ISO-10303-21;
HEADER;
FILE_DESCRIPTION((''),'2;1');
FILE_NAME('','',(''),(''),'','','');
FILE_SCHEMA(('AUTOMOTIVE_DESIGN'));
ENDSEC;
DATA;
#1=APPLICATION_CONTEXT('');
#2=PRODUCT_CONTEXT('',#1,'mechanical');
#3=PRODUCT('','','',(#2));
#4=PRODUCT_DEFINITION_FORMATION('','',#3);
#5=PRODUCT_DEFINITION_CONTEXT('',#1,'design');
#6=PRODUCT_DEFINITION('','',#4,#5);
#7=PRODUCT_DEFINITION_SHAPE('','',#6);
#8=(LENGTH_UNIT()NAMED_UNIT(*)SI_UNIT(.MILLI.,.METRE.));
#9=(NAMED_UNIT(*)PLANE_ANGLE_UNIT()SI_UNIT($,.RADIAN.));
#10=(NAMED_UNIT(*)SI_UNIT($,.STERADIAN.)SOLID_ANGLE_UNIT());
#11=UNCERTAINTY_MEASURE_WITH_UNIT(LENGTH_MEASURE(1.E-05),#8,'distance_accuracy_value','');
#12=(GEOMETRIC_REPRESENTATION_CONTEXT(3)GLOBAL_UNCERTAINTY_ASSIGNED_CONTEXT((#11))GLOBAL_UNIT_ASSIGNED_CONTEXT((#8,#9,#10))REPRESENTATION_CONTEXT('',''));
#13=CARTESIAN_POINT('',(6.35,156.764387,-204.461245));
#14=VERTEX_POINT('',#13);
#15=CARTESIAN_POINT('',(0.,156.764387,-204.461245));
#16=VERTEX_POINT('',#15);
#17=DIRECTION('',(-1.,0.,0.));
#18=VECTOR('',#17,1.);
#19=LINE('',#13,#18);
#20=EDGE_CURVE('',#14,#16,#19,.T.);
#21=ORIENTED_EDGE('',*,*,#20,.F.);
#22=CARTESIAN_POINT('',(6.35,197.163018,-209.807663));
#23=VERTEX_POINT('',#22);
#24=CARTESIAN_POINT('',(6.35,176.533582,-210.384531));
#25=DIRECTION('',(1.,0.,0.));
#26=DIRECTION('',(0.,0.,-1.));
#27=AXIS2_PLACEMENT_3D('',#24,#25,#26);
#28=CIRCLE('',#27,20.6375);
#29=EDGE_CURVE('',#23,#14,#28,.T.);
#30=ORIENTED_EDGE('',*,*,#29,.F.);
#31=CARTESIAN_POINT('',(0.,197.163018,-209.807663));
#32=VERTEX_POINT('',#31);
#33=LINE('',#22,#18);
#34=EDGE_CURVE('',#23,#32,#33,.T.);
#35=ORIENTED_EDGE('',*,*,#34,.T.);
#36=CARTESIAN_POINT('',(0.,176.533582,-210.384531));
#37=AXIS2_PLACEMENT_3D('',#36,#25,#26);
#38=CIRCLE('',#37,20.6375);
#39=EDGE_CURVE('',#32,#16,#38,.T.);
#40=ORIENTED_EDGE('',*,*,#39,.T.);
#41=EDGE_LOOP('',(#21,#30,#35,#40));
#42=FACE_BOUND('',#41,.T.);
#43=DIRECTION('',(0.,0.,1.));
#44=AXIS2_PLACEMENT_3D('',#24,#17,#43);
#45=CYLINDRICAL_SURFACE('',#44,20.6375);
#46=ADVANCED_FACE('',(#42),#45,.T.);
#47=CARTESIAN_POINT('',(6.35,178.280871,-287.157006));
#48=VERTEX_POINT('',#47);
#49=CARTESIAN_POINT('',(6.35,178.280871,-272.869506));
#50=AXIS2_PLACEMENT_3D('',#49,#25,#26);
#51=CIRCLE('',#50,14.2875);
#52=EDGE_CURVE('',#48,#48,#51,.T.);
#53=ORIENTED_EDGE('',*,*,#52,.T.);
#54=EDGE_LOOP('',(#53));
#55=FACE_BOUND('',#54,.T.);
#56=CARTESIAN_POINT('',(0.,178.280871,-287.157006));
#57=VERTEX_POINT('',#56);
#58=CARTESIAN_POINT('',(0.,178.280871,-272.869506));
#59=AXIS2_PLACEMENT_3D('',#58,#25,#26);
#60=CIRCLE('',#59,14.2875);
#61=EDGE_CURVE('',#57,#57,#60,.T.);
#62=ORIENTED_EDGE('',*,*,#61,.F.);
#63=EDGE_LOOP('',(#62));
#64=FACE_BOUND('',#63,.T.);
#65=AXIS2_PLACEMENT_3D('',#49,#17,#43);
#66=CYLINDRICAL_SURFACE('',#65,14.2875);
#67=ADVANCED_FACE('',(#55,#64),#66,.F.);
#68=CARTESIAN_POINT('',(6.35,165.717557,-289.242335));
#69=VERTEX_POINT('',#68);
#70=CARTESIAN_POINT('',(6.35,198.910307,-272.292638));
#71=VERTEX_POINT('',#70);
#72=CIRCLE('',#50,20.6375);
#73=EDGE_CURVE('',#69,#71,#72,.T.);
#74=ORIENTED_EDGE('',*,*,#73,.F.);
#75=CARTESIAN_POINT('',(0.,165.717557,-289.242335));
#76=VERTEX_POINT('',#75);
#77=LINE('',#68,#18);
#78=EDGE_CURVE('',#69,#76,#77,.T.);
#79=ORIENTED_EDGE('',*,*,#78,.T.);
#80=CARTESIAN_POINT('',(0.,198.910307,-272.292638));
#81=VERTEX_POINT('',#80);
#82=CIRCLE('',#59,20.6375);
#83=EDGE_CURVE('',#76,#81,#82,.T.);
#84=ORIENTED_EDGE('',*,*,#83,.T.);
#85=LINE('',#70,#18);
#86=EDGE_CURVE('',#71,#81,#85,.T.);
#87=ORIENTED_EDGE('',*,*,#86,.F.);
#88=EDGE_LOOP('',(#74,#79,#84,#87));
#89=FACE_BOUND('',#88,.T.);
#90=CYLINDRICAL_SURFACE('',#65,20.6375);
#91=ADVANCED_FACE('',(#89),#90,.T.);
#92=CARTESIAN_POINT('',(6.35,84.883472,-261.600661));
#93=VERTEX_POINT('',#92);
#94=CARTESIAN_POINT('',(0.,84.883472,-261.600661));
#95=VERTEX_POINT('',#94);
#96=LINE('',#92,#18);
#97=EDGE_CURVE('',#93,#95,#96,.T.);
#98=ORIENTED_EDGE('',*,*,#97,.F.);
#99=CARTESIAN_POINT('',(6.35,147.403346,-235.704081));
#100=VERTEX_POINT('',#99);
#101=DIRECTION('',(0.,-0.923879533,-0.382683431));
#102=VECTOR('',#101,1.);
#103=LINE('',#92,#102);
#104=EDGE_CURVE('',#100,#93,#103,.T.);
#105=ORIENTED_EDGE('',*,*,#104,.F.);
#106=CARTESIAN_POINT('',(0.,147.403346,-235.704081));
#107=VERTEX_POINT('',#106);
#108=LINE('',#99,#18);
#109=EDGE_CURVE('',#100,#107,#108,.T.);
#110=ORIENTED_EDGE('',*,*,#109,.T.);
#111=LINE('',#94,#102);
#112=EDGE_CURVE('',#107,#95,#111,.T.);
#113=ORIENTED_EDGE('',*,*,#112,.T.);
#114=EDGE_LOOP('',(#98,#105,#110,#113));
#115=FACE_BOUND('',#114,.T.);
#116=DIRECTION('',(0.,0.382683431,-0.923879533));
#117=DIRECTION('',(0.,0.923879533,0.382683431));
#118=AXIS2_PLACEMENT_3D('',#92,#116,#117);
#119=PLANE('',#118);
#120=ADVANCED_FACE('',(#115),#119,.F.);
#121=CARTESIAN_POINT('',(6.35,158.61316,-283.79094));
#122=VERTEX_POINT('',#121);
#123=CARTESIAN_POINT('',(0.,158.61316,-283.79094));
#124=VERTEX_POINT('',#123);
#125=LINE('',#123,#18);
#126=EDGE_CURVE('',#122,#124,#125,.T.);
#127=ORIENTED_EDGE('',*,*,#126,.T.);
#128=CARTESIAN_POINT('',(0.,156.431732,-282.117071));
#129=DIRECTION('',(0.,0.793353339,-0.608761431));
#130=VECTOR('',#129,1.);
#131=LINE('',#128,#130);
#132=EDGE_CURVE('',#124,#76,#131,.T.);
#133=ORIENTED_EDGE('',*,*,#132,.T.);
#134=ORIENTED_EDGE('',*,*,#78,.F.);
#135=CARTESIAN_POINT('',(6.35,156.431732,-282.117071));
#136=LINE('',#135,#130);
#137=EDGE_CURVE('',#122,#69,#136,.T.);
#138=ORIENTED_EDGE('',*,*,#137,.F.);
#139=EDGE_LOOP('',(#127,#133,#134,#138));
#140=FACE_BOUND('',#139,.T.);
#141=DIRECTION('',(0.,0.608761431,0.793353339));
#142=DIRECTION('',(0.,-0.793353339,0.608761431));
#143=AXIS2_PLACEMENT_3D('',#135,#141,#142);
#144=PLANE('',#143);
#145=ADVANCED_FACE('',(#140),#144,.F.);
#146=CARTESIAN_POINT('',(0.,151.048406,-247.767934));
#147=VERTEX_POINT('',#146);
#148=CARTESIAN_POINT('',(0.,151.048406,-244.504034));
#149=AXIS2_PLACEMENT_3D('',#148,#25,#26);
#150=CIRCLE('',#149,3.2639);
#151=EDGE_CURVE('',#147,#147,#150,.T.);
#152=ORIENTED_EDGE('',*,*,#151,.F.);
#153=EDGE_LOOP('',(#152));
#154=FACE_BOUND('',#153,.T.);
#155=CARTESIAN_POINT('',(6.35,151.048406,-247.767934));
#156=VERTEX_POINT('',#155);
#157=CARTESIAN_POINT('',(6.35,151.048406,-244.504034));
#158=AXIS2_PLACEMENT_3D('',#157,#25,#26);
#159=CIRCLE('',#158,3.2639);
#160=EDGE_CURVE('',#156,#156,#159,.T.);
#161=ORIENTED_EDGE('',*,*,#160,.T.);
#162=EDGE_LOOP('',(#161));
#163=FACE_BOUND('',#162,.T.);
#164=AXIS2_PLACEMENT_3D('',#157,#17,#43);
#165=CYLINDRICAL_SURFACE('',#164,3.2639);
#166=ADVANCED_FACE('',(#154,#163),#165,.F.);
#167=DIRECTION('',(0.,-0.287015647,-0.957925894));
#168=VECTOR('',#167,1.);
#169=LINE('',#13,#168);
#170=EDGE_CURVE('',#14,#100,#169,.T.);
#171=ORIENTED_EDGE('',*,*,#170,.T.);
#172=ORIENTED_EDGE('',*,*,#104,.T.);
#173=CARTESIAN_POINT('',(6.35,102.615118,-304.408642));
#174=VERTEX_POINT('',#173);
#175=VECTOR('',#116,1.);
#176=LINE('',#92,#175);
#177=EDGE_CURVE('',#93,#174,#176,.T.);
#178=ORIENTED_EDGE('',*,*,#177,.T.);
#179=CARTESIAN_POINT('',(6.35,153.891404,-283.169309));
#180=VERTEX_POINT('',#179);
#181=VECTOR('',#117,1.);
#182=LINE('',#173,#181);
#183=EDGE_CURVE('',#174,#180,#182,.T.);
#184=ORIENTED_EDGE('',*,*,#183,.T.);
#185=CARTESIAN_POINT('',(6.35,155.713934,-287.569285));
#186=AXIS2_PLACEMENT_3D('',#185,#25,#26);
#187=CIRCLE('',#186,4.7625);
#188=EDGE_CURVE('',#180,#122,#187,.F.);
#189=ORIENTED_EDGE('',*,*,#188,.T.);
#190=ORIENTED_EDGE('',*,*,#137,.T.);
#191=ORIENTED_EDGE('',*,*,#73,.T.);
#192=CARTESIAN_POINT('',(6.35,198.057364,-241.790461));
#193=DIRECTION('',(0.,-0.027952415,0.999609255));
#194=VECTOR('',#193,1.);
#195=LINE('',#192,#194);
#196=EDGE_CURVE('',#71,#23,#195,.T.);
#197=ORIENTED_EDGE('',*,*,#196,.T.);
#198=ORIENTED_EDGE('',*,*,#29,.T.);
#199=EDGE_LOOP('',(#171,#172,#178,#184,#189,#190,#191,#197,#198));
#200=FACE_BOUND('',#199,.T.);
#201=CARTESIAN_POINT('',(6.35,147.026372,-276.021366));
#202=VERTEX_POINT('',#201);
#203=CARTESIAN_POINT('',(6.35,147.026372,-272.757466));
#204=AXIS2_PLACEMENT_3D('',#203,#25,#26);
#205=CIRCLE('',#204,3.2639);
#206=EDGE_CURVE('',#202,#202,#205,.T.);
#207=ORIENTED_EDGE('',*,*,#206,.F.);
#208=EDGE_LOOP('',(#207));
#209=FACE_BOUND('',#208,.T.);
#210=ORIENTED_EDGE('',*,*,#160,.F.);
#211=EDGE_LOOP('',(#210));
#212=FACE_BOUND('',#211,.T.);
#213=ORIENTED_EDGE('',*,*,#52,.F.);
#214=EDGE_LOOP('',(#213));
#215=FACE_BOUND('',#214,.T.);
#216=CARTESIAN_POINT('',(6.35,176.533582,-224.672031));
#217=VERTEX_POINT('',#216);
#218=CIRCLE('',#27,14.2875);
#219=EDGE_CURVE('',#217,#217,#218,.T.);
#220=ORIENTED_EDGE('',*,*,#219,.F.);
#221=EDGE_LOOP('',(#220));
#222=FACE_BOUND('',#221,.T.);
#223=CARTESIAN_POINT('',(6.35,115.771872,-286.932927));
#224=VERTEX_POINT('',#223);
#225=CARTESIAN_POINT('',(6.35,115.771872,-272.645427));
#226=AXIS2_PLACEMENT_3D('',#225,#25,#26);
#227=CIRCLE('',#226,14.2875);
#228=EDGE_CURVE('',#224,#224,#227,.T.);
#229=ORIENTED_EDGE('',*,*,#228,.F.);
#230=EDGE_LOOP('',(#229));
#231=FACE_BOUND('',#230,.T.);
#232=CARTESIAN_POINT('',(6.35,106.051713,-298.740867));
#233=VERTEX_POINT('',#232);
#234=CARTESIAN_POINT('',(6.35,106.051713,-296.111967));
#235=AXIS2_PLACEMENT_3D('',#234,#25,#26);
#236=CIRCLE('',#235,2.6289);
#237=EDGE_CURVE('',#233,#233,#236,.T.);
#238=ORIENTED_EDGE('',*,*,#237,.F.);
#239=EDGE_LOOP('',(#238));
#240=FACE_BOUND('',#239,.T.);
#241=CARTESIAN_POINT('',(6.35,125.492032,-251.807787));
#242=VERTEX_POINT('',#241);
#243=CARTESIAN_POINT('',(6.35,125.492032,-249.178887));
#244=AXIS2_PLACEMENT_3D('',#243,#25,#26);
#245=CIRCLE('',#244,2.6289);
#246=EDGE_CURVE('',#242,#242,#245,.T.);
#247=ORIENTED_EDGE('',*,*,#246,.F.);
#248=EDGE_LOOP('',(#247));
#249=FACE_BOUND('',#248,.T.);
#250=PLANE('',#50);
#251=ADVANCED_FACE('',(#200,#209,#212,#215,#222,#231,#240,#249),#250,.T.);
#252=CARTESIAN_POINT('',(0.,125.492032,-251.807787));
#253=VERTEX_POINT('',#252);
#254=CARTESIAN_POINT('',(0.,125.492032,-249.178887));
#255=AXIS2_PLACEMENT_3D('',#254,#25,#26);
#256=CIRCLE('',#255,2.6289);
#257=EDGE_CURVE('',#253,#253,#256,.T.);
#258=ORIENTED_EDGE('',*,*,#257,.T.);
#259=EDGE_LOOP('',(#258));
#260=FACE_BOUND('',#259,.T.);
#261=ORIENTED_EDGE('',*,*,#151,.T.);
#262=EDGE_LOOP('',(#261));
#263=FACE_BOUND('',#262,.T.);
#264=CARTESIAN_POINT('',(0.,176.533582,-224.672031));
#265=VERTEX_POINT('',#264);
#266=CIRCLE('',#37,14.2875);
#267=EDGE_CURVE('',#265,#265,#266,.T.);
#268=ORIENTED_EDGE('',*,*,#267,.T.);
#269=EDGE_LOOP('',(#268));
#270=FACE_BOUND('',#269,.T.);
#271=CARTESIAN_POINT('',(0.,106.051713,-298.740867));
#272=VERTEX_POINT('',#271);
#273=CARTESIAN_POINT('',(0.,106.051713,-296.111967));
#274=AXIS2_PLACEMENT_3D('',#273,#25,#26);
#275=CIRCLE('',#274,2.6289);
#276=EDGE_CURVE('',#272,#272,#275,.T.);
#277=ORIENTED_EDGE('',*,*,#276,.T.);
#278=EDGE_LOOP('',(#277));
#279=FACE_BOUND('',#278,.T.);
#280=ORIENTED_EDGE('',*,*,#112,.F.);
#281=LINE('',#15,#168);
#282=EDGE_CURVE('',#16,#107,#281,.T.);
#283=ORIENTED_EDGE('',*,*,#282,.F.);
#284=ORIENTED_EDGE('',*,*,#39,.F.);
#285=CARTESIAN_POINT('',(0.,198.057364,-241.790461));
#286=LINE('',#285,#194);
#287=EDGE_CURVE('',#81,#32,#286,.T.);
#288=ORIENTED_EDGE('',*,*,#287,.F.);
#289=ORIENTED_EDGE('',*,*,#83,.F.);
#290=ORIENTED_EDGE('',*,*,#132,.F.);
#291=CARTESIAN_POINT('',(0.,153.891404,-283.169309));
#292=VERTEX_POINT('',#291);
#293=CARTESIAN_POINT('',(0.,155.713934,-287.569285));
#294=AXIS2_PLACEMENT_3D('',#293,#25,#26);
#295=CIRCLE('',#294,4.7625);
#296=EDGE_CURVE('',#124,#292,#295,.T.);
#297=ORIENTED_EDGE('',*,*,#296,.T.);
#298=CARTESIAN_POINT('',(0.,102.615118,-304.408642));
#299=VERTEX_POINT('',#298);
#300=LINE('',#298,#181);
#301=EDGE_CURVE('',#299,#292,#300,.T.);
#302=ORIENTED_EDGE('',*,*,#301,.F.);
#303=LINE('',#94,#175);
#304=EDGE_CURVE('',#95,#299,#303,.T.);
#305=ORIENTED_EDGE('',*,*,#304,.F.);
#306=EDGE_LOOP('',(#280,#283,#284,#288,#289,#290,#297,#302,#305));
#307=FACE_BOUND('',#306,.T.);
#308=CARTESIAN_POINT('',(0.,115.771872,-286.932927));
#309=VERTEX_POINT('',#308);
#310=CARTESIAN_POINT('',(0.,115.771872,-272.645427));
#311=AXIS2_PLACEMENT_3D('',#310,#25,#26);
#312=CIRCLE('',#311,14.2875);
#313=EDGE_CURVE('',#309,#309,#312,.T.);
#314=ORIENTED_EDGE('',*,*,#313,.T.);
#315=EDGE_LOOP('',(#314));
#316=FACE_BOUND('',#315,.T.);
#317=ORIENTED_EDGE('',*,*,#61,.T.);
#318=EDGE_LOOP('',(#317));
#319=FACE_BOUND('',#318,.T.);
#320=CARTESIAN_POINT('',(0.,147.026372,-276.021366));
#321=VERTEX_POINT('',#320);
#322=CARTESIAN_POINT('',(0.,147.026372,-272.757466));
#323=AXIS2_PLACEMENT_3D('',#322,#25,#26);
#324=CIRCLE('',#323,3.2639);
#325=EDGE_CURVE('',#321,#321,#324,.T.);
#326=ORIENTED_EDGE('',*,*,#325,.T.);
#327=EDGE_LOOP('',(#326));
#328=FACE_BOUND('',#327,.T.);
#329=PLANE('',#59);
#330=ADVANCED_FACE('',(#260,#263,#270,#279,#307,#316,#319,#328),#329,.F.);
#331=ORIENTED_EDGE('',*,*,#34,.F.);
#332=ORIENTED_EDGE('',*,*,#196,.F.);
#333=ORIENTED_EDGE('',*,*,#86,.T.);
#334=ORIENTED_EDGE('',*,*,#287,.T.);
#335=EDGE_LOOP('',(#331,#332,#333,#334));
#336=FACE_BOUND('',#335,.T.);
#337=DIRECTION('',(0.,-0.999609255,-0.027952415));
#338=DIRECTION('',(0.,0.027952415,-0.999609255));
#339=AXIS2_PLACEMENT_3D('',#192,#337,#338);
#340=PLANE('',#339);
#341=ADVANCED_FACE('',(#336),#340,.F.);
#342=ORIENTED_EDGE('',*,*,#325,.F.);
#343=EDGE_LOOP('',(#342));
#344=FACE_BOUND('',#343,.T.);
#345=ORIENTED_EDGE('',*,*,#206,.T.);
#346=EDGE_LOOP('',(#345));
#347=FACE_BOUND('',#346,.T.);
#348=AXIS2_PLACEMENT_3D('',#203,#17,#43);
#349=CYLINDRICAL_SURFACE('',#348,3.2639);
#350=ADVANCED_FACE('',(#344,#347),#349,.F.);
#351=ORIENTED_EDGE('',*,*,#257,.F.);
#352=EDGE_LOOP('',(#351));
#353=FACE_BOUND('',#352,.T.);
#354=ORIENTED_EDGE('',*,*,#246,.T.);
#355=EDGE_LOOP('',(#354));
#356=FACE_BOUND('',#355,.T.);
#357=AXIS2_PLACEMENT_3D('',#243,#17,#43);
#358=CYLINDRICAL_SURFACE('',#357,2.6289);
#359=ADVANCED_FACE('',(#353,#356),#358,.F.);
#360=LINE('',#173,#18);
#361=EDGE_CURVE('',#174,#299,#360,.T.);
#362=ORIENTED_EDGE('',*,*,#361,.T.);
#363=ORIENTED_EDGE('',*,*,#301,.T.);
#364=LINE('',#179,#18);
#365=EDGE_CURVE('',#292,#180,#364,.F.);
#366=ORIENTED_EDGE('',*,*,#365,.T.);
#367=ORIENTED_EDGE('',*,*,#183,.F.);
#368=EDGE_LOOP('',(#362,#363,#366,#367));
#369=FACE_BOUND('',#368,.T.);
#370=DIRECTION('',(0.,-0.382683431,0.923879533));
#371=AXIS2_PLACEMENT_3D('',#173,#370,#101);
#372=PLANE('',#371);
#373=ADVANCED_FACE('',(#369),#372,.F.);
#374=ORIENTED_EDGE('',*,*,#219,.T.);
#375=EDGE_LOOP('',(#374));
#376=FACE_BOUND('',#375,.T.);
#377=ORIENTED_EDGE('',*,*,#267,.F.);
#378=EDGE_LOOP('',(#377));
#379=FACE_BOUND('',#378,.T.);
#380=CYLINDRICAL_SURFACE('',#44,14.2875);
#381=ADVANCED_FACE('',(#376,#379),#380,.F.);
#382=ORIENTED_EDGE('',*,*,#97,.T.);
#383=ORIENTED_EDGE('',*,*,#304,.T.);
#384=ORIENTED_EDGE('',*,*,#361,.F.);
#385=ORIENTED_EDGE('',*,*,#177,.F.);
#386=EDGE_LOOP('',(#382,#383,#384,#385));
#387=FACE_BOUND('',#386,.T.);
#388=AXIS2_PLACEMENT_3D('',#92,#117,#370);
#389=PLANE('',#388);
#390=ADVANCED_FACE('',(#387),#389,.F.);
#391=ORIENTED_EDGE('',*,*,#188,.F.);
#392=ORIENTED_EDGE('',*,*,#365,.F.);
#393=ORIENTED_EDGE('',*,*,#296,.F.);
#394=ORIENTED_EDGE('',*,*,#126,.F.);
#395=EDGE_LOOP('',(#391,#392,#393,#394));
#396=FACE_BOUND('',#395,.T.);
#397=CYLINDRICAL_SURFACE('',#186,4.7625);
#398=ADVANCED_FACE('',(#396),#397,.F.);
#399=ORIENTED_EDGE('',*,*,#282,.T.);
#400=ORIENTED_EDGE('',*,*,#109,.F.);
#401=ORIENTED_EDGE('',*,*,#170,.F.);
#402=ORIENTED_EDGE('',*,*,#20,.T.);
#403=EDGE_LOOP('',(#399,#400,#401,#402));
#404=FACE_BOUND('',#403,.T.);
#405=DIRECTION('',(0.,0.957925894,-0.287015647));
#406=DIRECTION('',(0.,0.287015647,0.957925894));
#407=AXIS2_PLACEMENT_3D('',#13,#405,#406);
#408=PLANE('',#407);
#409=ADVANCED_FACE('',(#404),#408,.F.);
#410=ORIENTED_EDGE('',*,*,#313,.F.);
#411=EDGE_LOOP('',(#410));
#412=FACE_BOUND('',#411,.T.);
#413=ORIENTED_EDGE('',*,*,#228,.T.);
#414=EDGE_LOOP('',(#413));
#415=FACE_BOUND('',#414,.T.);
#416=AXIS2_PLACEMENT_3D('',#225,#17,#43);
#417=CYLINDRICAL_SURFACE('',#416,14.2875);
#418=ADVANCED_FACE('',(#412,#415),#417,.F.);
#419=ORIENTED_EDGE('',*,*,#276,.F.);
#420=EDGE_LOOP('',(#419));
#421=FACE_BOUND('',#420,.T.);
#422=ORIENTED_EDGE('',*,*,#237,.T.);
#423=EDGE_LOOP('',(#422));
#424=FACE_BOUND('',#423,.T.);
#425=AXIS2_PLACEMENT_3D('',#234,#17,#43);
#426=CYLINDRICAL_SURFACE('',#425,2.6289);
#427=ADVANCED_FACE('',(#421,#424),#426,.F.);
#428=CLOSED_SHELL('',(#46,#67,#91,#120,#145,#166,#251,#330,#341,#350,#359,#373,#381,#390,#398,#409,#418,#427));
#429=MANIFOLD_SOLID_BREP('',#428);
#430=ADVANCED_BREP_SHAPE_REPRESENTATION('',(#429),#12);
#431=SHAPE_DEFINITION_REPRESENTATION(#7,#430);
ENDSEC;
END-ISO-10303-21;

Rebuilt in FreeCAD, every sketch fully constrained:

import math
import FreeCAD as App
import Part
import Sketcher

V = App.Vector
Q = App.Units.Quantity


def edges_at(feature, points):
    """Names of the edges that pass closest to the given points."""
    edges = feature.Shape.Edges
    near = lambda p: min(range(len(edges)), key=lambda i: edges[i].distToShape(Part.Vertex(*p))[0])
    return sorted({f"Edge{near(p) + 1}" for p in points})

doc = App.newDocument("Part")
body = doc.addObject("PartDesign::Body", "Body")

# Sketch on YZ plane
sketch1 = doc.addObject("Sketcher::SketchObject", "Sketch")
body.addObject(sketch1)
sketch1.AttachmentSupport = (doc.YZ_Plane, [""])
sketch1.MapMode = "FlatFace"
sketch1.addGeometry([
    Part.LineSegment(V(147.4, -235.7, 0), V(84.9, -261.6, 0)),  # 0
    Part.LineSegment(V(84.9, -261.6, 0), V(102.6, -304.4, 0)),  # 1
    Part.LineSegment(V(102.6, -304.4, 0), V(156.4, -282.1, 0)),  # 2
    Part.LineSegment(V(156.4, -282.1, 0), V(165.7, -289.2, 0)),  # 3
    Part.ArcOfCircle(Part.Circle(V(178.3, -272.9, 0), V(0, 0, 1), 20.6), math.radians(-128), math.radians(2)),  # 4
    Part.LineSegment(V(198.9, -272.3, 0), V(198.1, -241.8, 0)),  # 5
    Part.LineSegment(V(198.1, -241.8, 0), V(197.2, -209.8, 0)),  # 6
    Part.ArcOfCircle(Part.Circle(V(176.5, -210.4, 0), V(0, 0, 1), 20.6), math.radians(2), math.radians(163)),  # 7
    Part.LineSegment(V(156.8, -204.5, 0), V(147.4, -235.7, 0)),  # 8
    Part.Circle(V(106.1, -296.1, 0), V(0, 0, 1), 2.6),  # 9
    Part.Circle(V(115.8, -272.6, 0), V(0, 0, 1), 14.3),  # 10
    Part.Circle(V(125.5, -249.2, 0), V(0, 0, 1), 2.6),  # 11
    Part.Circle(V(147, -272.8, 0), V(0, 0, 1), 3.3),  # 12
    Part.Circle(V(178.3, -272.9, 0), V(0, 0, 1), 14.3),  # 13
    Part.Circle(V(151, -244.5, 0), V(0, 0, 1), 3.3),  # 14
    Part.Circle(V(176.5, -210.4, 0), V(0, 0, 1), 14.3),  # 15
], False)
sketch1.addConstraint([
    Sketcher.Constraint("Coincident", 0, 2, 1, 1),
    Sketcher.Constraint("Coincident", 1, 2, 2, 1),
    Sketcher.Constraint("Coincident", 2, 2, 3, 1),
    Sketcher.Constraint("Tangent", 3, 2, 4, 1),
    Sketcher.Constraint("Tangent", 4, 2, 5, 1),
    Sketcher.Constraint("Coincident", 5, 2, 6, 1),
    Sketcher.Constraint("Tangent", 6, 2, 7, 1),
    Sketcher.Constraint("Tangent", 7, 2, 8, 1),
    Sketcher.Constraint("Coincident", 8, 2, 0, 1),
    Sketcher.Constraint("Coincident", 13, 3, 4, 3),
    Sketcher.Constraint("Coincident", 15, 3, 7, 3),
    Sketcher.Constraint("Equal", 4, 7),
    Sketcher.Constraint("Equal", 9, 11),
    Sketcher.Constraint("Equal", 10, 13),
    Sketcher.Constraint("Equal", 12, 14),
    Sketcher.Constraint("Equal", 13, 15),
    Sketcher.Constraint("Perpendicular", 0, 1),
    Sketcher.Constraint("Perpendicular", 1, 2),
    Sketcher.Constraint("Parallel", 5, 6),
    Sketcher.Constraint("Diameter", 9, Q("0.207 in")),
    Sketcher.Constraint("Diameter", 10, Q("1.125 in")),
    Sketcher.Constraint("Diameter", 12, Q("0.257 in")),
    Sketcher.Constraint("Radius", 4, Q("0.8125 in")),
    Sketcher.Constraint("Angle", 0, Q("-157.5 deg")),
    Sketcher.Constraint("Angle", 3, Q("-37.5 deg")),
    Sketcher.Constraint("DistanceY", 1, 2, 11, 3, Q("2.1743998 in")),
    Sketcher.Constraint("Distance", 5, Q("30.5141 mm")),
    Sketcher.Constraint("Distance", 6, Q("31.9953 mm")),
    Sketcher.Constraint("DistanceX", 10, 3, 4, 3, Q("62.508998 mm")),
    Sketcher.Constraint("DistanceX", 10, 3, 12, 3, Q("31.254499 mm")),
    Sketcher.Constraint("DistanceY", 9, 3, 12, 3, Q("23.354501 mm")),
    Sketcher.Constraint("DistanceX", 0, 2, 10, 3, Q("30.888401 mm")),
    Sketcher.Constraint("DistanceY", 3, 2, 14, 3, Q("44.738301 mm")),
    Sketcher.Constraint("DistanceY", 5, 2, 6, 2, Q("31.982798 mm")),
    Sketcher.Constraint("DistanceX", -1, 1, 4, 3, Q("178.280871 mm")),
    Sketcher.Constraint("DistanceY", 7, 3, -1, 1, Q("210.384531 mm")),
    Sketcher.Constraint("DistanceX", -1, 1, 11, 3, Q("125.492032 mm")),
    Sketcher.Constraint("DistanceY", 0, 2, -1, 1, Q("261.600661 mm")),
    Sketcher.Constraint("DistanceY", 1, 2, -1, 1, Q("304.408642 mm")),
    Sketcher.Constraint("DistanceY", 8, 2, -1, 1, Q("235.704081 mm")),
    Sketcher.Constraint("DistanceY", 9, 3, 4, 3, Q("23.242461 mm")),
    Sketcher.Constraint("DistanceX", 9, 3, 7, 3, Q("70.481869 mm")),
    Sketcher.Constraint("DistanceY", 9, 3, 10, 3, Q("23.46654 mm")),
    Sketcher.Constraint("DistanceX", 14, 3, 3, 2, Q("14.669151 mm")),
])
pad1 = doc.addObject("PartDesign::Pad", "Pad")
body.addObject(pad1)
pad1.Profile = sketch1
pad1.Length = Q("0.25 in")
doc.recompute()

fillet = doc.addObject("PartDesign::Fillet", "Fillet")
body.addObject(fillet)
fillet.Base = (pad1, edges_at(pad1, [(3.175, 156.432, -282.117)]))
fillet.Radius = Q("0.1875 in")

doc.recompute()
